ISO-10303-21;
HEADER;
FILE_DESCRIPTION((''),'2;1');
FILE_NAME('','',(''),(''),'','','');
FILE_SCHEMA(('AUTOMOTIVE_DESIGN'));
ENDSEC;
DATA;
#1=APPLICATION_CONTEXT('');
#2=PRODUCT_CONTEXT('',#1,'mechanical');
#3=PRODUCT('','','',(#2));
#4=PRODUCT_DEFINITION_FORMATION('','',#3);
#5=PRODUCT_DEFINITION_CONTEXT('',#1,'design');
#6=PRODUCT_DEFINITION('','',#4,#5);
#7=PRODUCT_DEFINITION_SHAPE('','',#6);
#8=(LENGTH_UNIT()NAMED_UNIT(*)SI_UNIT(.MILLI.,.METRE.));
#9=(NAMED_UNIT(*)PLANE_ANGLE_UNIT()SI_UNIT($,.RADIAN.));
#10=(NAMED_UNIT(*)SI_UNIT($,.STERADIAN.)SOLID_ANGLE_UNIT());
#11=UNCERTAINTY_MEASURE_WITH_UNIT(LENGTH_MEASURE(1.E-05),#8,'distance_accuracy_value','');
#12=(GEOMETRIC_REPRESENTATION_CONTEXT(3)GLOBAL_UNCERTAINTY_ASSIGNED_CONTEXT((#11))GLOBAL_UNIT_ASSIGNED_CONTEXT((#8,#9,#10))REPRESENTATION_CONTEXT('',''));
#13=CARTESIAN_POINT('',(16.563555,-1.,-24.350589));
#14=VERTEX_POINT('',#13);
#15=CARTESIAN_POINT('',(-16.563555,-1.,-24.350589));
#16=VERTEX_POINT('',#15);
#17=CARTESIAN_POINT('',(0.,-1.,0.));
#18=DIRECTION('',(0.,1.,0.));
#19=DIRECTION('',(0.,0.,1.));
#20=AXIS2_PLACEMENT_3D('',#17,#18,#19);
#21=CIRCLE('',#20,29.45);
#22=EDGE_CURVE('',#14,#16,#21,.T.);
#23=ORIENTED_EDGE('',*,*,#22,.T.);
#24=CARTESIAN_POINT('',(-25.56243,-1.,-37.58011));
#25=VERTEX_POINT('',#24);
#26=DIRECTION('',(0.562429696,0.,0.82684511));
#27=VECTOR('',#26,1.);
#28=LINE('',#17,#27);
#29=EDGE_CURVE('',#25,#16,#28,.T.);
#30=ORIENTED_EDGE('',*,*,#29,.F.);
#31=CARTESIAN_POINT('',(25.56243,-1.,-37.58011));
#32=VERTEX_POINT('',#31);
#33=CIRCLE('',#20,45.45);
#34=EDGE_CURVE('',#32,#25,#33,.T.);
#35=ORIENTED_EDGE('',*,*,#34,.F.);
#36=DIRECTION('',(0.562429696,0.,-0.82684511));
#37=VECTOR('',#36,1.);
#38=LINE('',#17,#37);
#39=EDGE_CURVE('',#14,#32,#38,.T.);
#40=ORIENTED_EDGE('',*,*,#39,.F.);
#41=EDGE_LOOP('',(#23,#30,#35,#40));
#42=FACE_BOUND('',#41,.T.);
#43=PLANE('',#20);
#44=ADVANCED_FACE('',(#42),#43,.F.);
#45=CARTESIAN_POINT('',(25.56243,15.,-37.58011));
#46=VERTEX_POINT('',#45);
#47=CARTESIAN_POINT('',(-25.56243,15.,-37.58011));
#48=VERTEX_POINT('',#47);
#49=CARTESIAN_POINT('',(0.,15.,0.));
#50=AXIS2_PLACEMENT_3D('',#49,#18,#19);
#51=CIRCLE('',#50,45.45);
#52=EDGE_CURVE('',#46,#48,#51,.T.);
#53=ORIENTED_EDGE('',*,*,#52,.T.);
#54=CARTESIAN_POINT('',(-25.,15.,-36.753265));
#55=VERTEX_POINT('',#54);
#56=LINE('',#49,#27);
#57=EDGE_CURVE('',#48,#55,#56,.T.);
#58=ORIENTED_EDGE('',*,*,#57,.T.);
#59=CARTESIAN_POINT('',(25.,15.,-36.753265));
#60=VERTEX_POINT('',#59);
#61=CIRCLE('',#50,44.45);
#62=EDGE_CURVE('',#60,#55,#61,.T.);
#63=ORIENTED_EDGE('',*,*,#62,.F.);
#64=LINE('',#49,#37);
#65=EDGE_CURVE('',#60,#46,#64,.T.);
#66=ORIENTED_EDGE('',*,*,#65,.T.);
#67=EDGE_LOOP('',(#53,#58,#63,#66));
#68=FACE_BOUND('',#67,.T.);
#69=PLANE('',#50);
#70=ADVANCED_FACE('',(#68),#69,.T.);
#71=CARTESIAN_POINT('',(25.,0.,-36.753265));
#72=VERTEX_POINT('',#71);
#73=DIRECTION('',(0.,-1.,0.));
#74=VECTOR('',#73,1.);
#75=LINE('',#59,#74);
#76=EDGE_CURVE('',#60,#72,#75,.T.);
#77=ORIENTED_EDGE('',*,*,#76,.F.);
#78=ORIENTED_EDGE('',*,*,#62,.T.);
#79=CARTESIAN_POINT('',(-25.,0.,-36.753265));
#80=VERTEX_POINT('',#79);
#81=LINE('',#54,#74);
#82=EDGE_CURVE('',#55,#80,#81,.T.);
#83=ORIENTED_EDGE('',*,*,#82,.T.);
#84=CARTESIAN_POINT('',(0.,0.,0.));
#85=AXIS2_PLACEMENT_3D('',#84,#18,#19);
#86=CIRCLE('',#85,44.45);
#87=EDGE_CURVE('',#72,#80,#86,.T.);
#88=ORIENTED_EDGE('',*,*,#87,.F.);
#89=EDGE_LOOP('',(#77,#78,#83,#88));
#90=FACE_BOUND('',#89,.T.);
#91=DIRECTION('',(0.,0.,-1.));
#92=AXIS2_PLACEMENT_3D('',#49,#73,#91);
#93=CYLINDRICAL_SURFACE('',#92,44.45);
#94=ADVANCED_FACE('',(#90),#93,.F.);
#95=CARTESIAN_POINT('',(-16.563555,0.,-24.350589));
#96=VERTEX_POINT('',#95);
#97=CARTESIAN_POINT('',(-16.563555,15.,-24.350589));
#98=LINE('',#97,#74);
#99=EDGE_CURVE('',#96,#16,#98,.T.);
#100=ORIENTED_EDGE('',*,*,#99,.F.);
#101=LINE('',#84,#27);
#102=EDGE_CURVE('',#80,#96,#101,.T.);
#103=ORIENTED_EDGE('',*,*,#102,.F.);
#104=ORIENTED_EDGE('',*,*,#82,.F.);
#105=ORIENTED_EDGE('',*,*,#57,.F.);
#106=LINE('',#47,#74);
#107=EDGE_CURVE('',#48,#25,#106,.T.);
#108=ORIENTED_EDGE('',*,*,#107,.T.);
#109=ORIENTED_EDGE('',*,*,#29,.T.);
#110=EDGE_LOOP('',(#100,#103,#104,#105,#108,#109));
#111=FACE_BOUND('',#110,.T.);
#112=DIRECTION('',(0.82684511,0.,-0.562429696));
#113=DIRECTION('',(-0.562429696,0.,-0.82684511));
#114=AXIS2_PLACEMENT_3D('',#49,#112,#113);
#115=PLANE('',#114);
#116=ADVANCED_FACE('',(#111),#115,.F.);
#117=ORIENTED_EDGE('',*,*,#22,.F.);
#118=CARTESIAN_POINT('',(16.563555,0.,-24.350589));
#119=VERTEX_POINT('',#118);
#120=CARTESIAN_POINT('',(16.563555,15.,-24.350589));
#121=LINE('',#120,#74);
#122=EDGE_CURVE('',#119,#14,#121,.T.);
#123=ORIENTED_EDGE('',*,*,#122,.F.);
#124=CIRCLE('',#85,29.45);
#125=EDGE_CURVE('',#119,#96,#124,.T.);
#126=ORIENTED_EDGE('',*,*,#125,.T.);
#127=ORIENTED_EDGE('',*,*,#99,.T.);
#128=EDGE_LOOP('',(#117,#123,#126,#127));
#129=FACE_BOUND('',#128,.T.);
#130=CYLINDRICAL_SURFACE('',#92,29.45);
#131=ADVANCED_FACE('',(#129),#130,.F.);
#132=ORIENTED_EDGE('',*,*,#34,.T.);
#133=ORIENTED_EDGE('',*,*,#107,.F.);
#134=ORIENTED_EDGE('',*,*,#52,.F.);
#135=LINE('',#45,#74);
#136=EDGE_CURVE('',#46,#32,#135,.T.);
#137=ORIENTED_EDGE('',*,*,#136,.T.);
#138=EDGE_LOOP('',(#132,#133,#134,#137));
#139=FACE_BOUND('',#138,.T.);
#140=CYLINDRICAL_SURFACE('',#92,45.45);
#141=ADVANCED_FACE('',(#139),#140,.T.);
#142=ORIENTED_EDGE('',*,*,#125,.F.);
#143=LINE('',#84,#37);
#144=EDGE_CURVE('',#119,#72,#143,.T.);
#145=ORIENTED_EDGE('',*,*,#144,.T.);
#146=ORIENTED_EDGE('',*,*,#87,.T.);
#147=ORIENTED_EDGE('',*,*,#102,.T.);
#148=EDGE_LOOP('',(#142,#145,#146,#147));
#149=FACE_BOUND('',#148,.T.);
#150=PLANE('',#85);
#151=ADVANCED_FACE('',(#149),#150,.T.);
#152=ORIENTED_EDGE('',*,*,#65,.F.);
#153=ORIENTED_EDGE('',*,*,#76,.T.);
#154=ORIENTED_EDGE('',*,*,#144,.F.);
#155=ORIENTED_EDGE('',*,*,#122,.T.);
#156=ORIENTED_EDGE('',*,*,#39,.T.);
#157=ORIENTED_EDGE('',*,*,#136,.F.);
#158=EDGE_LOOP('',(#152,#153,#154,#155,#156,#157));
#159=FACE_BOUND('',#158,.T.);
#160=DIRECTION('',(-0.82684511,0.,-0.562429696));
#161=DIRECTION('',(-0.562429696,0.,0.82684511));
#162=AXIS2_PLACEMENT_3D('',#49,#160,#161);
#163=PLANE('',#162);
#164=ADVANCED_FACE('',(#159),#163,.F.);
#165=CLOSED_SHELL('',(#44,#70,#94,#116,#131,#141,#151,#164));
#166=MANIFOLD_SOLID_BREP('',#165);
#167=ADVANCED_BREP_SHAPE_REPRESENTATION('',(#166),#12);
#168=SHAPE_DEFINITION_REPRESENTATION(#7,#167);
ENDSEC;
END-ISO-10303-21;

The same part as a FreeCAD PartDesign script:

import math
import FreeCAD as App
import Part
import Sketcher

V = App.Vector


def faces_at(feature, points):
    """Names of the faces that lie closest to the given points."""
    faces = feature.Shape.Faces
    near = lambda p: min(range(len(faces)), key=lambda i: faces[i].distToShape(Part.Vertex(*p))[0])
    return sorted({f"Face{near(p) + 1}" for p in points})

doc = App.newDocument("Part")
body = doc.addObject("PartDesign::Body", "Body")

sketch1 = body.newObject("Sketcher::SketchObject", "Sketch")
sketch1.AttachmentSupport = (doc.getObject("XZ_Plane"), [""])
sketch1.MapMode = "FlatFace"
sketch1.addGeometry(Part.ArcOfCircle(Part.Circle(V(0, 0, 0), V(0, 0, 1), 44.45), math.radians(-124.223995), math.radians(-55.776005)), False)
sketch1.addGeometry(Part.LineSegment(V(-25, -36.753265, 0), V(-16.563555, -24.350589, 0)), False)
sketch1.addGeometry(Part.ArcOfCircle(Part.Circle(V(0, 0, 0), V(0, 0, 1), 29.45), math.radians(-124.223995), math.radians(-55.776005)), False)
sketch1.addGeometry(Part.LineSegment(V(16.563555, -24.350589, 0), V(25, -36.753265, 0)), False)
sketch1.addConstraint(Sketcher.Constraint("Coincident", 0, 1, 1, 1))
sketch1.addConstraint(Sketcher.Constraint("Coincident", 1, 2, 2, 1))
sketch1.addConstraint(Sketcher.Constraint("Coincident", 2, 2, 3, 1))
sketch1.addConstraint(Sketcher.Constraint("Coincident", 3, 2, 0, 2))
sketch1.addConstraint(Sketcher.Constraint("Coincident", 0, 3, -1, 1))
sketch1.addConstraint(Sketcher.Constraint("Coincident", 2, 3, -1, 1))
sketch1.addConstraint(Sketcher.Constraint("Horizontal", 1, 2, 2, 2))
sketch1.addConstraint(Sketcher.Constraint("Horizontal", 0, 1, 3, 2))
sketch1.addConstraint(Sketcher.Constraint("Radius", 0, 44.45))
sketch1.addConstraint(Sketcher.Constraint("Radius", 2, 29.45))
sketch1.addConstraint(Sketcher.Constraint("DistanceX", 0, 1, -1, 1, 25.0))
sketch1.addConstraint(Sketcher.Constraint("DistanceY", 1, 2, -1, 1, 24.350589))
pad1 = body.newObject("PartDesign::Pad", "Pad")
pad1.Profile = sketch1
pad1.Length = 15
pad1.Reversed = True
doc.recompute()

thickness = body.newObject("PartDesign::Thickness", "Thickness")
thickness.Base = (pad1, faces_at(pad1, [
    (20.782, 7.5, -30.552),
    (-20.782, 7.5, -30.552),
    (0, 7.5, -29.45),
    (0, 15, -34.4),
]))
thickness.Value = 1
thickness.Reversed = False
thickness.Join = "Intersection"

doc.recompute()
